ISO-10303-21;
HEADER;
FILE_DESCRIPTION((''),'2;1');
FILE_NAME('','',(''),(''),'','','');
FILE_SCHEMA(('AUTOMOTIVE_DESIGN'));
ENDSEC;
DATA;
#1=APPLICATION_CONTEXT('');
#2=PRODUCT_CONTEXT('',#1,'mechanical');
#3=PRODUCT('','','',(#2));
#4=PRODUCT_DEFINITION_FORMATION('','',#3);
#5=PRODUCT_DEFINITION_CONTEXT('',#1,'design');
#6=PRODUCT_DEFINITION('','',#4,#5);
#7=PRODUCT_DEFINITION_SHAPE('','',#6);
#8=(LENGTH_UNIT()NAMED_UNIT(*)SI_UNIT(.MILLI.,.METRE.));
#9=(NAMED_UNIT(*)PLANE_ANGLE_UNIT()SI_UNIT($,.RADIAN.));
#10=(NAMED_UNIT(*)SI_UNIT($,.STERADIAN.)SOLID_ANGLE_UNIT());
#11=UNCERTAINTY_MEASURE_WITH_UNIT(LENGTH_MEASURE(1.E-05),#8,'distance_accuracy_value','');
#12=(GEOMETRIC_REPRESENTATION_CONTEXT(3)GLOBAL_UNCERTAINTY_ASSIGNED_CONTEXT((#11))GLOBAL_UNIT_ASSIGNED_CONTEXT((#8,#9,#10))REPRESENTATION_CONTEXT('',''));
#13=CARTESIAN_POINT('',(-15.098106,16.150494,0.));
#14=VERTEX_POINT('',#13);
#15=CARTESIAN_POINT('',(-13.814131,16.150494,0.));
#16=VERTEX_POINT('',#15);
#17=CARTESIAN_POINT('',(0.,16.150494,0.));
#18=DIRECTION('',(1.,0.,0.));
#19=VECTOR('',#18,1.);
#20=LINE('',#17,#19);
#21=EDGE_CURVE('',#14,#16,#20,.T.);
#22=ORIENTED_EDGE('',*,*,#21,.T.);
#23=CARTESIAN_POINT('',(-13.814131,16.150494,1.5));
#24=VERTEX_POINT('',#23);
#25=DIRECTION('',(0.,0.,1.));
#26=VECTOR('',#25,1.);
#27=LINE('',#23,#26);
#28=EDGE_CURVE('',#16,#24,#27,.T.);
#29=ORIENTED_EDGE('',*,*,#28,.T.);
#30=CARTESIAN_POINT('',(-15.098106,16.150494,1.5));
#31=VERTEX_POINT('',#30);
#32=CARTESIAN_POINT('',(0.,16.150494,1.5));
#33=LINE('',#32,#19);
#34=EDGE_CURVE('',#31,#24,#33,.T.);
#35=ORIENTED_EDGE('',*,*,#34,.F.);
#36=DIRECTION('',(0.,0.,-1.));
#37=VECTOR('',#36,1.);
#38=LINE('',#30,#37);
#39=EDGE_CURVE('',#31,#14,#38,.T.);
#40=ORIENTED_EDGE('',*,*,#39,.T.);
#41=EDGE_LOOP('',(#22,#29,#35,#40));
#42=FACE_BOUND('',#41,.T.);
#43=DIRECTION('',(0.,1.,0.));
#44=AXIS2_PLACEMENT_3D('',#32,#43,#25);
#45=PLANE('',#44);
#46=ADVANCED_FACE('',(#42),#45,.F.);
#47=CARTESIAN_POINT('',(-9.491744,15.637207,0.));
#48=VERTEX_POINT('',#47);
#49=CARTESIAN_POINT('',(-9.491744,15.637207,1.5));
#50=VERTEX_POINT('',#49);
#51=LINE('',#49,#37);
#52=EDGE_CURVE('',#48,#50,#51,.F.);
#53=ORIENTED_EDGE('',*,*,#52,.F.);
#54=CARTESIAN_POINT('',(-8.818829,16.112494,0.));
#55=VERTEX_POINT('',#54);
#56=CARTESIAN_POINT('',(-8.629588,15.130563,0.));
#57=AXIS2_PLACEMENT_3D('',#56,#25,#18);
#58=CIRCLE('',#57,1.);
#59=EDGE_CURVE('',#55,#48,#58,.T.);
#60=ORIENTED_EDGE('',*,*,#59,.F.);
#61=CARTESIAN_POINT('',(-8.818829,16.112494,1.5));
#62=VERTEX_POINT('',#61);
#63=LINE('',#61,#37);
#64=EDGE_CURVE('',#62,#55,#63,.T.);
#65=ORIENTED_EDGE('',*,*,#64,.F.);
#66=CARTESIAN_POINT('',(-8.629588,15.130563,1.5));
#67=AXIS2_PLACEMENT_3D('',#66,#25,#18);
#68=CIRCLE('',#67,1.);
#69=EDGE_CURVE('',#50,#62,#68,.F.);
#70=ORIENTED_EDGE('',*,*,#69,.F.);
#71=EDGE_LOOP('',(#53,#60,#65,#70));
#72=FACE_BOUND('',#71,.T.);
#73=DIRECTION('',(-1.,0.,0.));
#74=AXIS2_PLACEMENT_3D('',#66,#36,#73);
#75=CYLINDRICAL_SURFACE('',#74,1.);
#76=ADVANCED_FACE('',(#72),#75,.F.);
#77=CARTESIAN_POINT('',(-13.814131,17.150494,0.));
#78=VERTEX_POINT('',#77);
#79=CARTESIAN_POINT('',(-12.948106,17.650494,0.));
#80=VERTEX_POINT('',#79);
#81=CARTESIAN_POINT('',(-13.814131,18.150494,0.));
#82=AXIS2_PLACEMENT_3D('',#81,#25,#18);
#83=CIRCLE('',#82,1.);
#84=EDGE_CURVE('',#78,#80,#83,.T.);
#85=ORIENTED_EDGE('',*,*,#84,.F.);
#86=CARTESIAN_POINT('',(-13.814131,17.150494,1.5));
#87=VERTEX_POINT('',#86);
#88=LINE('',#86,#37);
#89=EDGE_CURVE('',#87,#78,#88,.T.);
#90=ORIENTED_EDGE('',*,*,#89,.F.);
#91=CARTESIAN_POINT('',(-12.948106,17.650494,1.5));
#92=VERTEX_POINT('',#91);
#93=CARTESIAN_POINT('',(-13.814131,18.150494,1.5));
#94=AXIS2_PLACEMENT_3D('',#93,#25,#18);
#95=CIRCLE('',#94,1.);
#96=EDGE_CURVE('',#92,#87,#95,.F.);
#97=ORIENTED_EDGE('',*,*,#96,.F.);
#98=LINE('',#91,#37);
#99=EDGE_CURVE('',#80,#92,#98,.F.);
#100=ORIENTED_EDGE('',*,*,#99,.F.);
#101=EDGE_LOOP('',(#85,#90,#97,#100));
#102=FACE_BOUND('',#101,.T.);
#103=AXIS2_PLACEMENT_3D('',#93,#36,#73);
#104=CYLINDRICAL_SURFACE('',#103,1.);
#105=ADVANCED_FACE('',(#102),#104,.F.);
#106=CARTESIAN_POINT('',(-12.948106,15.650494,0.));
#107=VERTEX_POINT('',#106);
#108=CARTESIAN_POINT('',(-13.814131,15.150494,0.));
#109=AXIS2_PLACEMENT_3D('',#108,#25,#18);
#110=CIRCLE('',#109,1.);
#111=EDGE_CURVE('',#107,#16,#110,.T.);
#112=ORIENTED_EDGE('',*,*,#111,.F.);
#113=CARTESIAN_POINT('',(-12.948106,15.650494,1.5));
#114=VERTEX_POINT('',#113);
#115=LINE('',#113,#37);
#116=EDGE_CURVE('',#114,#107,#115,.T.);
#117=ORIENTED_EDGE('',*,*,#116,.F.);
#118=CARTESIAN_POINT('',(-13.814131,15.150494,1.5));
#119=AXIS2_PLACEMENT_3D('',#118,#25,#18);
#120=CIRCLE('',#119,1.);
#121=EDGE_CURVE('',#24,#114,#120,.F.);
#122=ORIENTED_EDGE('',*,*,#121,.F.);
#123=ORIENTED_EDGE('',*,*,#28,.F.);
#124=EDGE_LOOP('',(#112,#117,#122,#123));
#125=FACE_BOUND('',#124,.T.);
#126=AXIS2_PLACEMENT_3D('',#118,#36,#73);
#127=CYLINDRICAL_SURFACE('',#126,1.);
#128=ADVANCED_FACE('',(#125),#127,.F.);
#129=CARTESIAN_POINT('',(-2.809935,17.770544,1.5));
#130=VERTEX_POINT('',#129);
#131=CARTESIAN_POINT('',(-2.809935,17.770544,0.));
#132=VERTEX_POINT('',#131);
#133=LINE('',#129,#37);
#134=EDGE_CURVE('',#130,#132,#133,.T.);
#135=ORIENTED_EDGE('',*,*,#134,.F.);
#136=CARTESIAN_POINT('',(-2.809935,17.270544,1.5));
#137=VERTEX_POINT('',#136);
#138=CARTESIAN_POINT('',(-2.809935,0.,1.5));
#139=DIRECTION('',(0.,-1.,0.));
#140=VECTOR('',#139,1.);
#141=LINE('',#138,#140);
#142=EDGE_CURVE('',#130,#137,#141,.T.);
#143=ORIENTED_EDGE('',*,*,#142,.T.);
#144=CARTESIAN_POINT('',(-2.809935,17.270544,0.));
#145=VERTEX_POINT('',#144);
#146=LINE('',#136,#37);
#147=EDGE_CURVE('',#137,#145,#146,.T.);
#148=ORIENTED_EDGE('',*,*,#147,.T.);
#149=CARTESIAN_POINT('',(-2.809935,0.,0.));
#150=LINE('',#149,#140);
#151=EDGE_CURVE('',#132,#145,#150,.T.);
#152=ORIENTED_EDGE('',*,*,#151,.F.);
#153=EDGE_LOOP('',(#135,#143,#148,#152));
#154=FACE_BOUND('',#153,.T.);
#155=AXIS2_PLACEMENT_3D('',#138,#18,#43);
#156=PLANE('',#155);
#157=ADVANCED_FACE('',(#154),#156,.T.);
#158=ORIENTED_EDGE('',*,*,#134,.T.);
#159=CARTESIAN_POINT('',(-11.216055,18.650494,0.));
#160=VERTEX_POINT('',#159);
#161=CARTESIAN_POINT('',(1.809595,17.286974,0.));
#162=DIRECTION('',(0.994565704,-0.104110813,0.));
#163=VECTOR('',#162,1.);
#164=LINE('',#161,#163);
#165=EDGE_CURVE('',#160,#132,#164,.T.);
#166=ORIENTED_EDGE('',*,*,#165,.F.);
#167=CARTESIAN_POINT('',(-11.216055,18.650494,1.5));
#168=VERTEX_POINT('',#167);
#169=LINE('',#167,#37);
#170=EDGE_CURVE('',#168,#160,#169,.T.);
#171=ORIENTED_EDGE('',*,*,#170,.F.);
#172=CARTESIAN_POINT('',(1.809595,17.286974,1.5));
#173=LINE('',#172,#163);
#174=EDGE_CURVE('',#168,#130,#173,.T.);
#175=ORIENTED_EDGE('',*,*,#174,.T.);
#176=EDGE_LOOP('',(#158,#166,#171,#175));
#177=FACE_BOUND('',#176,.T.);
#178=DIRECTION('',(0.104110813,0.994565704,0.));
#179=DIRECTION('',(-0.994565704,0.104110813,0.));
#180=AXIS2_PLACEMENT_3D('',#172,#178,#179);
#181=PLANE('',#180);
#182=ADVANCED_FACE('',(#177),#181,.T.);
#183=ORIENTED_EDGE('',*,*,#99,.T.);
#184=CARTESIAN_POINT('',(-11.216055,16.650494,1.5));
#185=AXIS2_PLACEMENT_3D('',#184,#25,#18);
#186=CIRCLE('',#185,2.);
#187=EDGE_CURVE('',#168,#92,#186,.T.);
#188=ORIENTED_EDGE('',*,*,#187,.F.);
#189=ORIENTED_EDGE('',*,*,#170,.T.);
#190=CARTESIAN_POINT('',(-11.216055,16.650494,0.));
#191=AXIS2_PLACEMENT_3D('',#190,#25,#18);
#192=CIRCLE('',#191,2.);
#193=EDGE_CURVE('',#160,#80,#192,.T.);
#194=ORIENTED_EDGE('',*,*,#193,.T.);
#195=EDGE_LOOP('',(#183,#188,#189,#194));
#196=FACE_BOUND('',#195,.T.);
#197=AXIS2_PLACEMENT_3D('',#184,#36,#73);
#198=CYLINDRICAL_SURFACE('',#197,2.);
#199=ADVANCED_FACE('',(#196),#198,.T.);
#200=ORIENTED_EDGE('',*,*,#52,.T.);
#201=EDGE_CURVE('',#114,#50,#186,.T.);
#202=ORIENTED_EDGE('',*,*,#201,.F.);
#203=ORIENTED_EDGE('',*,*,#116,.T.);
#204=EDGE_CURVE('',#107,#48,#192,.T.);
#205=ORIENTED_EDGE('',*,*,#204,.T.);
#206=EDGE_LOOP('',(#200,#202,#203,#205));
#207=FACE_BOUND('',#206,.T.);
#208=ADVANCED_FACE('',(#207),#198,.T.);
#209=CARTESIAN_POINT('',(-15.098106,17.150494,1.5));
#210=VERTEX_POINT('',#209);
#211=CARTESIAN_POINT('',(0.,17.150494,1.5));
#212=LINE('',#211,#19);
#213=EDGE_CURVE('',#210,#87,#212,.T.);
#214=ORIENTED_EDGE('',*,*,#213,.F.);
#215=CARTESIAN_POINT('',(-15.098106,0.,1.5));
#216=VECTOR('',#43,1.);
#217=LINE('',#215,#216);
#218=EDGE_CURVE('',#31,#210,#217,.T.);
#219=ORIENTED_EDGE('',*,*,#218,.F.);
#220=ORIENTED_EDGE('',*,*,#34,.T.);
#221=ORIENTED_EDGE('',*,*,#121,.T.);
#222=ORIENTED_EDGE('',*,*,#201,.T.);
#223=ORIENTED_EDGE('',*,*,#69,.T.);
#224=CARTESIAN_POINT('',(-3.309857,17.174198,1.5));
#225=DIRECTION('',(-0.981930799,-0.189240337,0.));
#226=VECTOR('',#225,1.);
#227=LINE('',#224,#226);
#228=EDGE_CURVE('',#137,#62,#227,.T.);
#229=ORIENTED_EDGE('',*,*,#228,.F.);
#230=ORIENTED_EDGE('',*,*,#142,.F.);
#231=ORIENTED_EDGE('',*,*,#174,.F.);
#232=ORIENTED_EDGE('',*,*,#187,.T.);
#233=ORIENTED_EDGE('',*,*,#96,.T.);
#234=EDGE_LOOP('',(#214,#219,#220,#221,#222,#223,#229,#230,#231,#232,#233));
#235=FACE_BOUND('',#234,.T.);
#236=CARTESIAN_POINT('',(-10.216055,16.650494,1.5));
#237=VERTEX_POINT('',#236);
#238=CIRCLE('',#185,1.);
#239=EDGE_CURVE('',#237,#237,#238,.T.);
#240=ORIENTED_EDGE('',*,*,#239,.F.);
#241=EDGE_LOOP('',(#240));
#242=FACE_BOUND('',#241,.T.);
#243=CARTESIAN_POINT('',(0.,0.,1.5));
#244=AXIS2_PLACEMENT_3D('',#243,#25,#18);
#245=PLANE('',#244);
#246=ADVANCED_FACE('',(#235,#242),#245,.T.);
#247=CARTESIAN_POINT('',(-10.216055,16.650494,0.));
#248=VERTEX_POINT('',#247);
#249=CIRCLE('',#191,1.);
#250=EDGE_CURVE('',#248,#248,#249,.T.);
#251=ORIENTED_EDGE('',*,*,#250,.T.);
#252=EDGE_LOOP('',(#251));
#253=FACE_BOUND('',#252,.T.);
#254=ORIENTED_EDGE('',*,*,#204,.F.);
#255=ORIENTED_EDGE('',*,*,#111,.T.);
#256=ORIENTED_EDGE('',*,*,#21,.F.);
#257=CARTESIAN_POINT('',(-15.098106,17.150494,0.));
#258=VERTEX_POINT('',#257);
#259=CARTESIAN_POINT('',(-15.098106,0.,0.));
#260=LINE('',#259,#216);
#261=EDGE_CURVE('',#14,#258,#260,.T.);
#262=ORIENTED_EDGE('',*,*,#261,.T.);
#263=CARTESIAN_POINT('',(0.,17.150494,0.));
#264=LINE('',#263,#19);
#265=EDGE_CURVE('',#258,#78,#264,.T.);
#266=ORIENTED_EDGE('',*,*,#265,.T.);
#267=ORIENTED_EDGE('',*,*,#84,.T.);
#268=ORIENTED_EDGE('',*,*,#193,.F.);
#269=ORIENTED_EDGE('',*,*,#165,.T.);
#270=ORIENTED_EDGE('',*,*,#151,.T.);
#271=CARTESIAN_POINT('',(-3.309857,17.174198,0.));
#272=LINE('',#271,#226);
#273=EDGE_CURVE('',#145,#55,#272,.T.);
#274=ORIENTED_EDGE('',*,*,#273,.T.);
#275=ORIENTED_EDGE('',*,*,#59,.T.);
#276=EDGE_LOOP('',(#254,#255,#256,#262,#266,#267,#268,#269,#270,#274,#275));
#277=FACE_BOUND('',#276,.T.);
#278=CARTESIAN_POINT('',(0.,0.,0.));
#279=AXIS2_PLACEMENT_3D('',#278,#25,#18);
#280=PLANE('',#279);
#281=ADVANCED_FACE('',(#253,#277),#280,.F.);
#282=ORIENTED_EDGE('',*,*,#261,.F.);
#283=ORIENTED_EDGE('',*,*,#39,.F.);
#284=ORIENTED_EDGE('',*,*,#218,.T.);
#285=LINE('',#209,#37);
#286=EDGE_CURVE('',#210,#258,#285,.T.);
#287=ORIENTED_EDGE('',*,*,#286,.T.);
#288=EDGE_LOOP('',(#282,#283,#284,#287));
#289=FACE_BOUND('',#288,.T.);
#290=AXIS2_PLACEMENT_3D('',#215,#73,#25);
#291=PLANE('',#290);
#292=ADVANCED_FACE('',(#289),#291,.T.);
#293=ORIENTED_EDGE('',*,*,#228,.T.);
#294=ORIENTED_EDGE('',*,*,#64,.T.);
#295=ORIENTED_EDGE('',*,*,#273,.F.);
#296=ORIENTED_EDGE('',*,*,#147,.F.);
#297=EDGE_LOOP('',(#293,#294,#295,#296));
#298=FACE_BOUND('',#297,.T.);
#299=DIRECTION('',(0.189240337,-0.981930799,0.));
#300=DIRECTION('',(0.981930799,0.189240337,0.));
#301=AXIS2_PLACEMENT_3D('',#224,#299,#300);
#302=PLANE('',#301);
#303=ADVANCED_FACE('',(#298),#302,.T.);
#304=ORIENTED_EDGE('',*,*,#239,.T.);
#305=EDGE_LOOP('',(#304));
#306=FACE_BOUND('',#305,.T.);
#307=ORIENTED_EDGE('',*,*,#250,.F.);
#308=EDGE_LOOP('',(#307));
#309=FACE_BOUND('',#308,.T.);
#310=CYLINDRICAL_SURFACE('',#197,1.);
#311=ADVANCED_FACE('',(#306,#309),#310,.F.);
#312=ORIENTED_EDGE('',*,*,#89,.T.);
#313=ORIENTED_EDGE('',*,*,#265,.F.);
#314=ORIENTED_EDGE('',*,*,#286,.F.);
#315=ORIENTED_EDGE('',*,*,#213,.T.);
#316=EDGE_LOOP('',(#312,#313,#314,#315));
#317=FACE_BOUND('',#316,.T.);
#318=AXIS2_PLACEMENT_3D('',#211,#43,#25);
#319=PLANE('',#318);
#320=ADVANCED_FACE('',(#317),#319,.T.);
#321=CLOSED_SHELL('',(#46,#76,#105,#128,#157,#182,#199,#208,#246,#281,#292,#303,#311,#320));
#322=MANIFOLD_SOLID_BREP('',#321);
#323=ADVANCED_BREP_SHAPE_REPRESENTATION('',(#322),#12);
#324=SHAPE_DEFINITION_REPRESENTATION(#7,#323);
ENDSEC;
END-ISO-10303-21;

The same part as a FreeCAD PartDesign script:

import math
import FreeCAD as App
import Part
import Sketcher
Q = App.Units.Quantity


def edges_at(feature, points):
    """Names of the edges that pass closest to the given points."""
    edges = feature.Shape.Edges
    near = lambda p: min(range(len(edges)), key=lambda i: edges[i].distToShape(Part.Vertex(*p))[0])
    return sorted({f"Edge{near(p) + 1}" for p in points})

doc = App.newDocument("Part")
body = doc.addObject("PartDesign::Body", "Body")

# Sketch on XY plane
sketch1 = body.newObject("Sketcher::SketchObject", "Sketch")
sketch1.AttachmentSupport = (doc.getObject("XY_Plane"), [""])
sketch1.MapMode = "FlatFace"
sketch1.addGeometry([
    Part.LineSegment(App.Vector(-2.8, 17.3, 0), App.Vector(-2.8, 17.8, 0)),  # 0
    Part.LineSegment(App.Vector(-2.8, 17.8, 0), App.Vector(-11.2, 18.7, 0)),  # 1
    Part.ArcOfCircle(Part.Circle(App.Vector(-11.2, 16.7, 0), App.Vector(0, 0, 1), 2), math.radians(90), math.radians(166)),  # 2
    Part.LineSegment(App.Vector(-13.2, 17.2, 0), App.Vector(-15.1, 17.2, 0)),  # 3
    Part.LineSegment(App.Vector(-15.1, 17.2, 0), App.Vector(-15.1, 16.2, 0)),  # 4
    Part.LineSegment(App.Vector(-15.1, 16.2, 0), App.Vector(-13.2, 16.2, 0)),  # 5
    Part.ArcOfCircle(Part.Circle(App.Vector(-11.2, 16.7, 0), App.Vector(0, 0, 1), 2), math.radians(-166), math.radians(-18)),  # 6
    Part.LineSegment(App.Vector(-9.3, 16, 0), App.Vector(-2.8, 17.3, 0)),  # 7
    Part.Circle(App.Vector(-11.2, 16.7, 0), App.Vector(0, 0, 1), 1),  # 8
], False)
sketch1.addConstraint([
    Sketcher.Constraint("Coincident", 0, 2, 1, 1),
    Sketcher.Constraint("Coincident", 1, 2, 2, 1),
    Sketcher.Constraint("Coincident", 2, 2, 3, 1),
    Sketcher.Constraint("Coincident", 3, 2, 4, 1),
    Sketcher.Constraint("Coincident", 4, 2, 5, 1),
    Sketcher.Constraint("Coincident", 5, 2, 6, 1),
    Sketcher.Constraint("Coincident", 6, 2, 7, 1),
    Sketcher.Constraint("Coincident", 7, 2, 0, 1),
    Sketcher.Constraint("Vertical", 0),
    Sketcher.Constraint("Horizontal", 3),
    Sketcher.Constraint("Vertical", 4),
    Sketcher.Constraint("Horizontal", 5),
    Sketcher.Constraint("Coincident", 6, 3, 2, 3),
    Sketcher.Constraint("Coincident", 8, 3, 2, 3),
    Sketcher.Constraint("Equal", 2, 6),
    Sketcher.Constraint("Vertical", 8, 3, 1, 2),
    Sketcher.Constraint("Vertical", 2, 2, 5, 2),
    Sketcher.Constraint("Diameter", 8, Q("2 mm")),
    Sketcher.Constraint("Radius", 2, Q("2 mm")),
    Sketcher.Constraint("DistanceY", 4, 2, 4, 1, Q("1 mm")),
    Sketcher.Constraint("DistanceY", 0, 1, 0, 2, Q("0.5 mm")),
    Sketcher.Constraint("DistanceX", 3, 2, 3, 1, Q("1.945559 mm")),
    Sketcher.Constraint("Distance", 1, Q("8.452051 mm")),
    Sketcher.Constraint("Distance", 7, Q("6.629209 mm")),
    Sketcher.Constraint("DistanceX", 6, 2, -1, 1, Q("9.319359 mm")),
    Sketcher.Constraint("DistanceY", -1, 1, 6, 2, Q("16.016031 mm")),
    Sketcher.Constraint("DistanceX", 2, 3, 0, 2, Q("8.40612 mm")),
])
pad1 = body.newObject("PartDesign::Pad", "Pad")
pad1.Profile = sketch1
pad1.Length = 1.5
doc.recompute()

fillet = body.newObject("PartDesign::Fillet", "Fillet")
fillet.Base = (pad1, edges_at(pad1, [(-13.153, 16.15, 0.75)]))
fillet.Radius = 1
doc.recompute()

fillet2 = body.newObject("PartDesign::Fillet", "Fillet001")
fillet2.Base = (fillet, edges_at(fillet, [(-13.153, 17.15, 0.75)]))
fillet2.Radius = 1
doc.recompute()

fillet3 = body.newObject("PartDesign::Fillet", "Fillet002")
fillet3.Base = (fillet2, edges_at(fillet2, [(-9.319, 16.016, 0.75)]))
fillet3.Radius = 1

doc.recompute()
